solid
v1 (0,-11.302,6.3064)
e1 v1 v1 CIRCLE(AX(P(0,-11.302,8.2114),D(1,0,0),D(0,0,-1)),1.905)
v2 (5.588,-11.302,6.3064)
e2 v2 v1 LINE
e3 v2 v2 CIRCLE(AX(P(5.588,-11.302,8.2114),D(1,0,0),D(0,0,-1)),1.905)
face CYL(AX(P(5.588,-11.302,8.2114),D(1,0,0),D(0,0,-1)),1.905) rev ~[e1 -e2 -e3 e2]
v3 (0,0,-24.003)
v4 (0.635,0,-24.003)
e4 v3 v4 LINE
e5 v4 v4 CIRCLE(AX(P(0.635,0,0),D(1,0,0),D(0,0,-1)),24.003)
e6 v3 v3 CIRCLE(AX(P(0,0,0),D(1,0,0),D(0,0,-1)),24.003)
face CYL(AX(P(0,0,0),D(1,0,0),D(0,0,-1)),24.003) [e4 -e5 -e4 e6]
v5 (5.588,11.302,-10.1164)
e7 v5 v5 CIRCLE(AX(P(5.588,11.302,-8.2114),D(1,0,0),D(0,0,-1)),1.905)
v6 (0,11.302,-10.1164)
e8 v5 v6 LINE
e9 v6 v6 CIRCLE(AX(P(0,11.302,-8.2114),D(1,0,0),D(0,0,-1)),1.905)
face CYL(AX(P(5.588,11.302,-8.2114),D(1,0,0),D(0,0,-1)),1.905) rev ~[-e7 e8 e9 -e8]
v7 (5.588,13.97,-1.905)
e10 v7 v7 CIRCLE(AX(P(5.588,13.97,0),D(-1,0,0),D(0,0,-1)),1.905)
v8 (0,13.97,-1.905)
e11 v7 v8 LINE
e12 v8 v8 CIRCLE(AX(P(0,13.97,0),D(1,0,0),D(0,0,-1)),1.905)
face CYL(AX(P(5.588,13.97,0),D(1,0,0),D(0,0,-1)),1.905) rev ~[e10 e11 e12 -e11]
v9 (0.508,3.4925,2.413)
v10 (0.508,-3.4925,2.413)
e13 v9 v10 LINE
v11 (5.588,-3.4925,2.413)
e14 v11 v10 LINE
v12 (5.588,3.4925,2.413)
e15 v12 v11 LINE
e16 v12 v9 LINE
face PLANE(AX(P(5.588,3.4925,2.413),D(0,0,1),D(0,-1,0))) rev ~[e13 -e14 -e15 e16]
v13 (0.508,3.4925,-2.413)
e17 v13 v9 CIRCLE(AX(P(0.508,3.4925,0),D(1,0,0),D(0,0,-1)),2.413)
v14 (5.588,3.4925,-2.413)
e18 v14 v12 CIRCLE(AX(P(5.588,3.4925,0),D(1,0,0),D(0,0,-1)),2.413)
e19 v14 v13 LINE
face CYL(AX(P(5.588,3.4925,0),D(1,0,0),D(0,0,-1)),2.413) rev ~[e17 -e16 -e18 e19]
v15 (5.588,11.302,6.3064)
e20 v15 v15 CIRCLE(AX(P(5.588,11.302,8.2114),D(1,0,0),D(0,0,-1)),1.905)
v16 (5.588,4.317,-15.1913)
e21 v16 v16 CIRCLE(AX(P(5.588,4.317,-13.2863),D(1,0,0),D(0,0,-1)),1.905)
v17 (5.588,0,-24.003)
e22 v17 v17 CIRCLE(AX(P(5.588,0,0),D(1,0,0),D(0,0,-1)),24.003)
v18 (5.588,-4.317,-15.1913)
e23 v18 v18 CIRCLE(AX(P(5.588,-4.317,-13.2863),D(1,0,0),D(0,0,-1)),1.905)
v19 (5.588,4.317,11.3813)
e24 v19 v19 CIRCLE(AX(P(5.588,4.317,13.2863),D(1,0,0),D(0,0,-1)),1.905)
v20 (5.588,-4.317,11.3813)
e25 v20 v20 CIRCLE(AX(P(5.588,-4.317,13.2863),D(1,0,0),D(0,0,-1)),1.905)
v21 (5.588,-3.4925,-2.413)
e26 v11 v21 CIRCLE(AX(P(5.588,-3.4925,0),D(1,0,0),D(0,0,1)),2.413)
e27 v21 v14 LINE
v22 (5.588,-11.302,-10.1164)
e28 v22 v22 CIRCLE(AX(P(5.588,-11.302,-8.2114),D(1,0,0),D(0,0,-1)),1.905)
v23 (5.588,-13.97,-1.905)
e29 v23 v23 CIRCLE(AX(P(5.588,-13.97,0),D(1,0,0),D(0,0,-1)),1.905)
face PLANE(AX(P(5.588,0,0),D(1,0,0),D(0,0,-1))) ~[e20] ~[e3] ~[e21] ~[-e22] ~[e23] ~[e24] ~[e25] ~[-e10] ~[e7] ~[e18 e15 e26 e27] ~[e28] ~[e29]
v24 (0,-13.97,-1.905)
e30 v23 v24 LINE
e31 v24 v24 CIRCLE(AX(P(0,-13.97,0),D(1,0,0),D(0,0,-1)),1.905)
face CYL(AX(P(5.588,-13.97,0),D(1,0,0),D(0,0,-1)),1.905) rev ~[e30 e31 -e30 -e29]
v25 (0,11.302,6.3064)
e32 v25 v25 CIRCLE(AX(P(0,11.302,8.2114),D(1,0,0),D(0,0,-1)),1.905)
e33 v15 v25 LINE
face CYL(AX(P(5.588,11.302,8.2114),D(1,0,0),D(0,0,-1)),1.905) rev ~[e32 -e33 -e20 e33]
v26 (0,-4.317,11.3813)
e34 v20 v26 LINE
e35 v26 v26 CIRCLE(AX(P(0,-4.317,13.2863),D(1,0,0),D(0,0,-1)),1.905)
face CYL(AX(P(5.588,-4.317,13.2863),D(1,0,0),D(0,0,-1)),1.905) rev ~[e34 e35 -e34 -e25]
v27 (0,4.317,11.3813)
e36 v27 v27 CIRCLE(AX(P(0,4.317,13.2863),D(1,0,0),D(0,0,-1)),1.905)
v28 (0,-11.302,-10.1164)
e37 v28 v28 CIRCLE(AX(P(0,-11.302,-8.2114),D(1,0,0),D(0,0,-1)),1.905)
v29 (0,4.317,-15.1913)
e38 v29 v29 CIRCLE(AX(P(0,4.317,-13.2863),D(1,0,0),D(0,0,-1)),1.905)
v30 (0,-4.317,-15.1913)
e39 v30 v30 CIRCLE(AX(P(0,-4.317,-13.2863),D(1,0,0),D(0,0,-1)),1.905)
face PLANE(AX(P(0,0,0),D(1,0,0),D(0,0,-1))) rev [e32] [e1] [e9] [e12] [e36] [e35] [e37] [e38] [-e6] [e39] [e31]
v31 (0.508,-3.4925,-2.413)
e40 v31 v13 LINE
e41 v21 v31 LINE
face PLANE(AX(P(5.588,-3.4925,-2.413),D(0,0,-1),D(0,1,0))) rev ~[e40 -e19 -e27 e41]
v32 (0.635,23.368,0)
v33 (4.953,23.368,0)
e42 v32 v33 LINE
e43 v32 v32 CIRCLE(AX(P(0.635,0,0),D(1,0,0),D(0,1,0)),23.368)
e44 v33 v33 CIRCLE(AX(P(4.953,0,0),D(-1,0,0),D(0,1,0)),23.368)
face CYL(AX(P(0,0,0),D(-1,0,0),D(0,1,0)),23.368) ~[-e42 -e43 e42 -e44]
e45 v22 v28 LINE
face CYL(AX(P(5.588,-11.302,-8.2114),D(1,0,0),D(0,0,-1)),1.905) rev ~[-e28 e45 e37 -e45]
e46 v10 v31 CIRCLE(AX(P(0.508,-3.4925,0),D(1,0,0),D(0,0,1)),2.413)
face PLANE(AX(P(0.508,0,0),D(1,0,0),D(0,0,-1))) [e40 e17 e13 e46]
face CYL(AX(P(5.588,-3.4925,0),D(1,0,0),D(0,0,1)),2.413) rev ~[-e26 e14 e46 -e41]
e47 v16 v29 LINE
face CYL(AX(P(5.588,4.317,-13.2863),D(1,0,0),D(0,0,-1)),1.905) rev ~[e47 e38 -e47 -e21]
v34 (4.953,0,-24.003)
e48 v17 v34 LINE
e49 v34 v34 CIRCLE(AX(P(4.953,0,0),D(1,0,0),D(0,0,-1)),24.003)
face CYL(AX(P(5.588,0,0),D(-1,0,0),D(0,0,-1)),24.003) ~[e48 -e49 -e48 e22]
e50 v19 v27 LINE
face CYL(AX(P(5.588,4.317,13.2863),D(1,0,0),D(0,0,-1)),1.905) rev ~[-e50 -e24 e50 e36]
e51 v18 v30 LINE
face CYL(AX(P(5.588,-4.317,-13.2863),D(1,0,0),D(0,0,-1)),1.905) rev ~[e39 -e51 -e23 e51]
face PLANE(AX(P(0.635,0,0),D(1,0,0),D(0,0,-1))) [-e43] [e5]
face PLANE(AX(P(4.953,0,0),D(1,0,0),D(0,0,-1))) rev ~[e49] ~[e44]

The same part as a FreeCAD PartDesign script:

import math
import FreeCAD as App
import Part
import Sketcher
Q = App.Units.Quantity


def add_polygon(sketch, points):
    """Adds a closed chain of lines whose ends are joined by coincident constraints."""
    first, n = sketch.GeometryCount, len(points)
    for a, b in zip(points, points[1:] + points[:1]):
        sketch.addGeometry(Part.LineSegment(App.Vector(*a, 0), App.Vector(*b, 0)), False)
    for i in range(n):
        sketch.addConstraint(Sketcher.Constraint("Coincident", first + i, 2, first + (i + 1) % n, 1))

doc = App.newDocument("Part")
body = doc.addObject("PartDesign::Body", "Body")

# Sketch on YZ plane
sketch1 = doc.addObject("Sketcher::SketchObject", "Sketch")
body.addObject(sketch1)
sketch1.AttachmentSupport = (doc.YZ_Plane, [""])
sketch1.MapMode = "FlatFace"
sketch1.addGeometry(Part.Circle(App.Vector(0, 0, 0), App.Vector(0, 0, 1), 23), False)
sketch1.addConstraint(Sketcher.Constraint("Coincident", 0, 3, -1, 1))
sketch1.addConstraint(Sketcher.Constraint("Diameter", 0, Q("1.84 in")))
pad1 = doc.addObject("PartDesign::Pad", "Pad")
body.addObject(pad1)
pad1.Profile = sketch1
pad1.Length = Q("0.22 in")

# Sketch on YZ plane
sketch2 = doc.addObject("Sketcher::SketchObject", "Sketch001")
body.addObject(sketch2)
sketch2.AttachmentSupport = (doc.YZ_Plane, [""])
sketch2.MapMode = "FlatFace"
sketch2.AttachmentOffset = App.Placement(App.Vector(0, 0, 0.22 * 25.4), App.Rotation())
sketch2.addGeometry(Part.ArcOfCircle(Part.Circle(App.Vector(-3.5, 0, 0), App.Vector(0, 0, 1), 2.4), math.radians(90), math.radians(270)), False)
sketch2.addGeometry(Part.LineSegment(App.Vector(-3.5, -2.4, 0), App.Vector(3.5, -2.4, 0)), False)
sketch2.addGeometry(Part.ArcOfCircle(Part.Circle(App.Vector(3.5, 0, 0), App.Vector(0, 0, 1), 2.4), math.radians(-90), math.radians(90)), False)
sketch2.addGeometry(Part.LineSegment(App.Vector(3.5, 2.4, 0), App.Vector(-3.5, 2.4, 0)), False)
sketch2.addConstraint(Sketcher.Constraint("Tangent", 0, 2, 1, 1))
sketch2.addConstraint(Sketcher.Constraint("Tangent", 1, 2, 2, 1))
sketch2.addConstraint(Sketcher.Constraint("Tangent", 2, 2, 3, 1))
sketch2.addConstraint(Sketcher.Constraint("Tangent", 3, 2, 0, 1))
sketch2.addConstraint(Sketcher.Constraint("Horizontal", 1))
sketch2.addConstraint(Sketcher.Constraint("Horizontal", 3))
sketch2.addConstraint(Sketcher.Constraint("Symmetric", 0, 3, 2, 3, -1, 1))
sketch2.addConstraint(Sketcher.Constraint("Radius", 0, Q("0.095 in")))
sketch2.addConstraint(Sketcher.Constraint("DistanceX", 0, 3, -1, 1, Q("0.1375 in")))
pocket1 = doc.addObject("PartDesign::Pocket", "Pocket")
body.addObject(pocket1)
pocket1.Profile = sketch2
pocket1.Length = Q("0.2 in")

# Sketch on YZ plane
sketch3 = doc.addObject("Sketcher::SketchObject", "Sketch002")
body.addObject(sketch3)
sketch3.AttachmentSupport = (doc.YZ_Plane, [""])
sketch3.MapMode = "FlatFace"
sketch3.AttachmentOffset = App.Placement(App.Vector(0, 0, 0.22 * 25.4), App.Rotation())
sketch3.addGeometry(Part.Circle(App.Vector(14, 0, 0), App.Vector(0, 0, 1), 1.9), False)
sketch3.addGeometry(Part.Circle(App.Vector(11.3, 8.2, 0), App.Vector(0, 0, 1), 1.9), False)
sketch3.addGeometry(Part.Circle(App.Vector(4.3, 13.3, 0), App.Vector(0, 0, 1), 1.9), False)
sketch3.addGeometry(Part.Circle(App.Vector(-4.3, 13.3, 0), App.Vector(0, 0, 1), 1.9), False)
sketch3.addGeometry(Part.Circle(App.Vector(-11.3, 8.2, 0), App.Vector(0, 0, 1), 1.9), False)
sketch3.addGeometry(Part.Circle(App.Vector(-14, 0, 0), App.Vector(0, 0, 1), 1.9), False)
sketch3.addGeometry(Part.Circle(App.Vector(-11.3, -8.2, 0), App.Vector(0, 0, 1), 1.9), False)
sketch3.addGeometry(Part.Circle(App.Vector(-4.3, -13.3, 0), App.Vector(0, 0, 1), 1.9), False)
sketch3.addGeometry(Part.Circle(App.Vector(4.3, -13.3, 0), App.Vector(0, 0, 1), 1.9), False)
sketch3.addGeometry(Part.Circle(App.Vector(11.3, -8.2, 0), App.Vector(0, 0, 1), 1.9), False)
sketch3.addConstraint(Sketcher.Constraint("Equal", 0, 1))
sketch3.addConstraint(Sketcher.Constraint("Equal", 1, 2))
sketch3.addConstraint(Sketcher.Constraint("Equal", 2, 3))
sketch3.addConstraint(Sketcher.Constraint("Equal", 3, 4))
sketch3.addConstraint(Sketcher.Constraint("Equal", 4, 5))
sketch3.addConstraint(Sketcher.Constraint("Equal", 5, 6))
sketch3.addConstraint(Sketcher.Constraint("Equal", 6, 7))
sketch3.addConstraint(Sketcher.Constraint("Equal", 7, 8))
sketch3.addConstraint(Sketcher.Constraint("Equal", 8, 9))
sketch3.addConstraint(Sketcher.Constraint("Symmetric", 0, 3, 5, 3, -1, 1))
sketch3.addConstraint(Sketcher.Constraint("Symmetric", 1, 3, 6, 3, -1, 1))
sketch3.addConstraint(Sketcher.Constraint("Symmetric", 2, 3, 7, 3, -1, 1))
sketch3.addConstraint(Sketcher.Constraint("Symmetric", 3, 3, 8, 3, -1, 1))
sketch3.addConstraint(Sketcher.Constraint("Symmetric", 4, 3, 9, 3, -1, 1))
sketch3.addConstraint(Sketcher.Constraint("Symmetric", 2, 3, 3, 3, -2))
sketch3.addConstraint(Sketcher.Constraint("Symmetric", 1, 3, 4, 3, -2))
sketch3.addConstraint(Sketcher.Constraint("PointOnObject", 0, 3, -1))
sketch3.addConstraint(Sketcher.Constraint("Diameter", 0, Q("0.15 in")))
sketch3.addConstraint(Sketcher.Constraint("DistanceX", -1, 1, 0, 3, Q("0.55 in")))
sketch3.addConstraint(Sketcher.Constraint("DistanceX", 2, 3, 1, 3, Q("0.275 in")))
sketch3.addConstraint(Sketcher.Constraint("DistanceY", 1, 3, 2, 3, Q("0.1998 in")))
sketch3.addConstraint(Sketcher.Constraint("DistanceX", -1, 1, 1, 3, Q("11.302 mm")))
sketch3.addConstraint(Sketcher.Constraint("DistanceY", -1, 1, 1, 3, Q("8.2114 mm")))
pocket2 = doc.addObject("PartDesign::Pocket", "Pocket001")
body.addObject(pocket2)
pocket2.Profile = sketch3
pocket2.Length = Q("1 in")

# Sketch on XZ plane
sketch4 = doc.addObject("Sketcher::SketchObject", "Sketch003")
body.addObject(sketch4)
sketch4.AttachmentSupport = (doc.XZ_Plane, [""])
sketch4.MapMode = "FlatFace"
add_polygon(sketch4, [(5, -24), (5, -23.4), (5.6, -23.4), (5.6, -24)])  # lines 0-3
add_polygon(sketch4, [(0, -24), (0, -23.4), (0.6, -23.4), (0.6, -24)])  # lines 4-7
sketch4.addConstraint(Sketcher.Constraint("Vertical", 0))
sketch4.addConstraint(Sketcher.Constraint("Horizontal", 1))
sketch4.addConstraint(Sketcher.Constraint("Vertical", 2))
sketch4.addConstraint(Sketcher.Constraint("Horizontal", 3))
sketch4.addConstraint(Sketcher.Constraint("Vertical", 4))
sketch4.addConstraint(Sketcher.Constraint("Horizontal", 5))
sketch4.addConstraint(Sketcher.Constraint("Vertical", 6))
sketch4.addConstraint(Sketcher.Constraint("Horizontal", 7))
sketch4.addConstraint(Sketcher.Constraint("PointOnObject", 4, 2, -2))
sketch4.addConstraint(Sketcher.Constraint("Horizontal", 1, 2, 4, 2))
sketch4.addConstraint(Sketcher.Constraint("Horizontal", 3, 2, 6, 2))
sketch4.addConstraint(Sketcher.Constraint("Equal", 3, 5))
sketch4.addConstraint(Sketcher.Constraint("Equal", 7, 0))
sketch4.addConstraint(Sketcher.Constraint("DistanceX", 1, 1, 1, 2, Q("0.025 in")))
sketch4.addConstraint(Sketcher.Constraint("DistanceY", 0, 2, -1, 1, Q("0.92 in")))
sketch4.addConstraint(Sketcher.Constraint("DistanceX", -1, 1, 1, 2, Q("0.22 in")))
revolution = doc.addObject("PartDesign::Revolution", "Revolution")
body.addObject(revolution)
revolution.Profile = sketch4
revolution.ReferenceAxis = (sketch4, ["H_Axis"])
revolution.Angle = 360

doc.recompute()
